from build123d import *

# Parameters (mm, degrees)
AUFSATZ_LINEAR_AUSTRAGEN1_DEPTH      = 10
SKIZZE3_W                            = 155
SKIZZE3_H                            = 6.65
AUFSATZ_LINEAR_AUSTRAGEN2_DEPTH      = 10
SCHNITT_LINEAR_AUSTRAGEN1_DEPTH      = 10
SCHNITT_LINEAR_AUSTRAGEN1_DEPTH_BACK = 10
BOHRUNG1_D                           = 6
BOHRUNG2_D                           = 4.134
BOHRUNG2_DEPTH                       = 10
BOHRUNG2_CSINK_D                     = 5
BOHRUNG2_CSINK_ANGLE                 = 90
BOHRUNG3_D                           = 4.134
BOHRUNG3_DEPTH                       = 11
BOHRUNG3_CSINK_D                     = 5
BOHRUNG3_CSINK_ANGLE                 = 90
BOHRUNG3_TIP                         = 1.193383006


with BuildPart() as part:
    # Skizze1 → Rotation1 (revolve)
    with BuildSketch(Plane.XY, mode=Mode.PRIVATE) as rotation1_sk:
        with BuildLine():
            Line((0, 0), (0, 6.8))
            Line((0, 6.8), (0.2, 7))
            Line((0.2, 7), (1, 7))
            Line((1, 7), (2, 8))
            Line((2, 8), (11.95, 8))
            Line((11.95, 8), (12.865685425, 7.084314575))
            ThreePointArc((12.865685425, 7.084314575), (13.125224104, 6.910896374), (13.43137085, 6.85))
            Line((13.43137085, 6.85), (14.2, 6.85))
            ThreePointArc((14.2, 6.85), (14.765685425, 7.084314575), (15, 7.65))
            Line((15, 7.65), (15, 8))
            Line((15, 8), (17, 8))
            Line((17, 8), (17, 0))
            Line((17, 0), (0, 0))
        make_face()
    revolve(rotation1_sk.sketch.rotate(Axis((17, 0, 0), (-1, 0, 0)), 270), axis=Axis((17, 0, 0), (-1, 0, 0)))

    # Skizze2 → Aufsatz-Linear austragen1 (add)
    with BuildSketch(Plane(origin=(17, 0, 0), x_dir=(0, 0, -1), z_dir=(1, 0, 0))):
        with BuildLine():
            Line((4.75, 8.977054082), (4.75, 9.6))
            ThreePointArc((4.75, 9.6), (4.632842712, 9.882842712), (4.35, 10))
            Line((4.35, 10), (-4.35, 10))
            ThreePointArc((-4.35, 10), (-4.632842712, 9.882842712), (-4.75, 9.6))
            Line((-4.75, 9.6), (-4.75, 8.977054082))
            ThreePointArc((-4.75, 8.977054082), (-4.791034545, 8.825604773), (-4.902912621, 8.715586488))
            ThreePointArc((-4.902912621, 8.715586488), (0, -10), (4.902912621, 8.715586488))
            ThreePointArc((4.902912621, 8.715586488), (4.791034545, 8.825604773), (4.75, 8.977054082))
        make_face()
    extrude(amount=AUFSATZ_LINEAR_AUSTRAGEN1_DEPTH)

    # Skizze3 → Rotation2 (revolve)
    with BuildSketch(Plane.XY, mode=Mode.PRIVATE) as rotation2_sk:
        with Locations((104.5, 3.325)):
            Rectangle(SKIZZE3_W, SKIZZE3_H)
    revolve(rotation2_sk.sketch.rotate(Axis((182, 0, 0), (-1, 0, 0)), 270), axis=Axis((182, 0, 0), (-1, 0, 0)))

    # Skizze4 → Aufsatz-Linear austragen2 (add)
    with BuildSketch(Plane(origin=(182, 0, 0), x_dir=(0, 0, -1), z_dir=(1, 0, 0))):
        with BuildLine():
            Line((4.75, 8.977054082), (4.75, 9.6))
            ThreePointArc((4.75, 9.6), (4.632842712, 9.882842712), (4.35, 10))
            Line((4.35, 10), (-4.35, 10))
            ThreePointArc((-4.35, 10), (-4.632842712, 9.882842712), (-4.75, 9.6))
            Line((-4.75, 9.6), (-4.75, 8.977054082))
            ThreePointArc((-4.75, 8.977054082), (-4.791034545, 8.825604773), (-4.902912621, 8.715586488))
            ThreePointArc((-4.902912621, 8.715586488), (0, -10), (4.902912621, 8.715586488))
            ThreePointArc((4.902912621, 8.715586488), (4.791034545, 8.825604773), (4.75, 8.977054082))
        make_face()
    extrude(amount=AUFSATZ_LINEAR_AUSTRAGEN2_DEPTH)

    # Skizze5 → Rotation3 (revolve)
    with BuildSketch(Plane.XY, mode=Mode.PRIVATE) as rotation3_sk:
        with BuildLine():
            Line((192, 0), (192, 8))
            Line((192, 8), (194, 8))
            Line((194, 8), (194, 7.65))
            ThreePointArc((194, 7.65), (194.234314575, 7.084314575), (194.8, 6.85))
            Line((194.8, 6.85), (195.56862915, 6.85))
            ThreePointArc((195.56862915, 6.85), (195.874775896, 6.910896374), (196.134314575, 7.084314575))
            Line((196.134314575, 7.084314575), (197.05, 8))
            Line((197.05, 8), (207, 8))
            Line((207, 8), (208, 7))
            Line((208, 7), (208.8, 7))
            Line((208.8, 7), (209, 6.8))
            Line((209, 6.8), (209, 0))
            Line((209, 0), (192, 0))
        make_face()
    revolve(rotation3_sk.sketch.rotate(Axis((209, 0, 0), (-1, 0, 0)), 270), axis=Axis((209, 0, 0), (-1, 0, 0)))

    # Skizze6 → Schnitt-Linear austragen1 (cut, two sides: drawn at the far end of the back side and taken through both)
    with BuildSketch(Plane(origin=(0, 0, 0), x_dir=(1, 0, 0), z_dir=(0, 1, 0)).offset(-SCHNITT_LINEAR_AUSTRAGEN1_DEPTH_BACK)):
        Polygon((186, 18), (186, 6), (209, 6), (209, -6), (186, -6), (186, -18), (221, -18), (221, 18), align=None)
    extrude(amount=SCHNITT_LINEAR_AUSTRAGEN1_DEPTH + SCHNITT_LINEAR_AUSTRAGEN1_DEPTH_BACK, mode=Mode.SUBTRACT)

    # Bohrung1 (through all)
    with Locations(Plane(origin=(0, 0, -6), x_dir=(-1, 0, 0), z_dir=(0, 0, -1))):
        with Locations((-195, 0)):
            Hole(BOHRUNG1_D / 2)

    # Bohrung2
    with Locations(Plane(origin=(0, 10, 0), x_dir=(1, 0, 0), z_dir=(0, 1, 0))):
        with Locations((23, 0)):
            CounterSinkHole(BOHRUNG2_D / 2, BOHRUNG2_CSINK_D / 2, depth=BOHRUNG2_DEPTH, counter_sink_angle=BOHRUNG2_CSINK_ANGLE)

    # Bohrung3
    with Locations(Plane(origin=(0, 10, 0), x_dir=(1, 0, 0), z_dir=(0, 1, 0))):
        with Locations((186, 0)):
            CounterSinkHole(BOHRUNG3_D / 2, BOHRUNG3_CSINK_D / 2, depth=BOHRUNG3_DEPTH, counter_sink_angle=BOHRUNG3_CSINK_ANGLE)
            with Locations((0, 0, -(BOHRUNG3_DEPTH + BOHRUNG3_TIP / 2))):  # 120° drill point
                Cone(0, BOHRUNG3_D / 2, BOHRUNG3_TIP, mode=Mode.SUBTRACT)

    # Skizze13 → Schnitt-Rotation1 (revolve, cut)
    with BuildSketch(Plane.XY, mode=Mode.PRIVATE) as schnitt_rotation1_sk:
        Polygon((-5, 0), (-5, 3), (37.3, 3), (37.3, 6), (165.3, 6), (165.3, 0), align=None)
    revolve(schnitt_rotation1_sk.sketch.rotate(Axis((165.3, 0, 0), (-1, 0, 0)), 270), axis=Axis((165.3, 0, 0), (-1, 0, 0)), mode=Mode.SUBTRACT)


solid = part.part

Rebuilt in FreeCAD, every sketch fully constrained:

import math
import FreeCAD as App
import Part
import Sketcher
Q = App.Units.Quantity

doc = App.newDocument("Part")
body = doc.addObject("PartDesign::Body", "Body")

sketch1 = doc.addObject("Sketcher::SketchObject", "Sketch")
body.addObject(sketch1)
sketch1.AttachmentSupport = (doc.XY_Plane, [""])
sketch1.MapMode = "FlatFace"
sketch1.addGeometry([
    Part.LineSegment(App.Vector(0, 6.8, 0), App.Vector(0, 0, 0)),
    Part.LineSegment(App.Vector(0, 0, 0), App.Vector(17, 0, 0)),
    Part.LineSegment(App.Vector(17, 0, 0), App.Vector(17, 8, 0)),
    Part.LineSegment(App.Vector(17, 8, 0), App.Vector(15, 8, 0)),
    Part.LineSegment(App.Vector(15, 8, 0), App.Vector(15, 7.65, 0)),
    Part.ArcOfCircle(Part.Circle(App.Vector(14.2, 7.65, 0), App.Vector(0, 0, 1), 0.8), math.radians(-90), math.radians(0)),
    Part.LineSegment(App.Vector(14.2, 6.85, 0), App.Vector(13.43, 6.85, 0)),
    Part.ArcOfCircle(Part.Circle(App.Vector(13.43, 7.65, 0), App.Vector(0, 0, 1), 0.8), math.radians(-135), math.radians(-90)),
    Part.LineSegment(App.Vector(12.87, 7.08, 0), App.Vector(11.95, 8, 0)),
    Part.LineSegment(App.Vector(11.95, 8, 0), App.Vector(2, 8, 0)),
    Part.LineSegment(App.Vector(2, 8, 0), App.Vector(1, 7, 0)),
    Part.LineSegment(App.Vector(1, 7, 0), App.Vector(0.2, 7, 0)),
    Part.LineSegment(App.Vector(0.2, 7, 0), App.Vector(0, 6.8, 0)),
], False)
sketch1.addConstraint([
    Sketcher.Constraint("Coincident", 0, 2, 1, 1),
    Sketcher.Constraint("Coincident", 1, 2, 2, 1),
    Sketcher.Constraint("Coincident", 2, 2, 3, 1),
    Sketcher.Constraint("Coincident", 3, 2, 4, 1),
    Sketcher.Constraint("Tangent", 4, 2, 5, 2),
    Sketcher.Constraint("Tangent", 5, 1, 6, 1),
    Sketcher.Constraint("Tangent", 6, 2, 7, 2),
    Sketcher.Constraint("Tangent", 7, 1, 8, 1),
    Sketcher.Constraint("Coincident", 8, 2, 9, 1),
    Sketcher.Constraint("Coincident", 9, 2, 10, 1),
    Sketcher.Constraint("Coincident", 10, 2, 11, 1),
    Sketcher.Constraint("Coincident", 11, 2, 12, 1),
    Sketcher.Constraint("Coincident", 12, 2, 0, 1),
    Sketcher.Constraint("Vertical", 0),
    Sketcher.Constraint("Horizontal", 1),
    Sketcher.Constraint("Vertical", 2),
    Sketcher.Constraint("Horizontal", 3),
    Sketcher.Constraint("Vertical", 4),
    Sketcher.Constraint("Horizontal", 6),
    Sketcher.Constraint("Horizontal", 9),
    Sketcher.Constraint("Horizontal", 11),
    Sketcher.Constraint("Coincident", 0, 2, -1, 1),
    Sketcher.Constraint("Equal", 5, 7),
    Sketcher.Constraint("Perpendicular", 8, 10),
    Sketcher.Constraint("Parallel", 10, 12),
    Sketcher.Constraint("Horizontal", 3, 2, 8, 2),
    Sketcher.Constraint("Radius", 5, 0.8),
    Sketcher.Constraint("DistanceX", 1, 1, 1, 2, 17.0),
    Sketcher.Constraint("DistanceX", 3, 2, 3, 1, 2.0),
    Sketcher.Constraint("DistanceY", 2, 1, 2, 2, 8.0),
    Sketcher.Constraint("Angle", 8, Q("135 deg")),
    Sketcher.Constraint("DistanceX", 11, 2, 11, 1, 0.8),
    Sketcher.Constraint("DistanceY", 0, 2, 0, 1, 6.8),
    Sketcher.Constraint("DistanceX", -1, 1, 10, 2, 1.0),
    Sketcher.Constraint("DistanceX", 9, 2, 9, 1, 9.95),
    Sketcher.Constraint("DistanceY", 4, 2, 4, 1, 0.35),
])
revolution = doc.addObject("PartDesign::Revolution", "Revolution")
body.addObject(revolution)
revolution.Profile = sketch1
revolution.ReferenceAxis = (sketch1, ["H_Axis"])
revolution.Angle = 360

sketch2 = doc.addObject("Sketcher::SketchObject", "Sketch001")
body.addObject(sketch2)
sketch2.AttachmentSupport = (doc.YZ_Plane, [""])
sketch2.MapMode = "FlatFace"
sketch2.AttachmentOffset = App.Placement(App.Vector(0, 0, 17), App.Rotation())
sketch2.addGeometry([
    Part.LineSegment(App.Vector(8.98, -4.75, 0), App.Vector(9.6, -4.75, 0)),
    Part.ArcOfCircle(Part.Circle(App.Vector(9.6, -4.35, 0), App.Vector(0, 0, 1), 0.4), math.radians(-90), math.radians(0)),
    Part.LineSegment(App.Vector(10, -4.35, 0), App.Vector(10, 4.35, 0)),
    Part.ArcOfCircle(Part.Circle(App.Vector(9.6, 4.35, 0), App.Vector(0, 0, 1), 0.4), math.radians(0), math.radians(90)),
    Part.LineSegment(App.Vector(9.6, 4.75, 0), App.Vector(8.98, 4.75, 0)),
    Part.ArcOfCircle(Part.Circle(App.Vector(8.98, 5.05, 0), App.Vector(0, 0, 1), 0.3), math.radians(-151), math.radians(-90)),
    Part.ArcOfCircle(Part.Circle(App.Vector(0, 0, 0), App.Vector(0, 0, 1), 10), math.radians(29), math.radians(331)),
    Part.ArcOfCircle(Part.Circle(App.Vector(8.98, -5.05, 0), App.Vector(0, 0, 1), 0.3), math.radians(90), math.radians(151)),
], False)
sketch2.addConstraint([
    Sketcher.Constraint("Tangent", 0, 2, 1, 1),
    Sketcher.Constraint("Tangent", 1, 2, 2, 1),
    Sketcher.Constraint("Tangent", 2, 2, 3, 1),
    Sketcher.Constraint("Tangent", 3, 2, 4, 1),
    Sketcher.Constraint("Tangent", 4, 2, 5, 2),
    Sketcher.Constraint("Tangent", 5, 1, 6, 1),
    Sketcher.Constraint("Tangent", 6, 2, 7, 2),
    Sketcher.Constraint("Tangent", 7, 1, 0, 1),
    Sketcher.Constraint("Horizontal", 0),
    Sketcher.Constraint("Vertical", 2),
    Sketcher.Constraint("Horizontal", 4),
    Sketcher.Constraint("Coincident", 6, 3, -1, 1),
    Sketcher.Constraint("Equal", 1, 3),
    Sketcher.Constraint("Equal", 5, 7),
    Sketcher.Constraint("Vertical", 5, 3, 7, 3),
    Sketcher.Constraint("Radius", 6, 10.0),
    Sketcher.Constraint("Radius", 1, 0.4),
    Sketcher.Constraint("Radius", 5, 0.3),
    Sketcher.Constraint("DistanceY", 2, 1, 2, 2, 8.7),
    Sketcher.Constraint("DistanceX", -1, 1, 1, 2, 10.0),
])
pad1 = doc.addObject("PartDesign::Pad", "Pad")
body.addObject(pad1)
pad1.Profile = sketch2
pad1.Length = 10

sketch3 = doc.addObject("Sketcher::SketchObject", "Sketch002")
body.addObject(sketch3)
sketch3.AttachmentSupport = (doc.XY_Plane, [""])
sketch3.MapMode = "FlatFace"
sketch3.addGeometry([
    Part.LineSegment(App.Vector(27, 7, 0), App.Vector(27, 0, 0)),
    Part.LineSegment(App.Vector(27, 0, 0), App.Vector(182, 0, 0)),
    Part.LineSegment(App.Vector(182, 0, 0), App.Vector(182, 7, 0)),
    Part.LineSegment(App.Vector(182, 7, 0), App.Vector(27, 7, 0)),
], False)
sketch3.addConstraint([
    Sketcher.Constraint("Coincident", 0, 2, 1, 1),
    Sketcher.Constraint("Coincident", 1, 2, 2, 1),
    Sketcher.Constraint("Coincident", 2, 2, 3, 1),
    Sketcher.Constraint("Coincident", 3, 2, 0, 1),
    Sketcher.Constraint("Vertical", 0),
    Sketcher.Constraint("Horizontal", 1),
    Sketcher.Constraint("Vertical", 2),
    Sketcher.Constraint("Horizontal", 3),
    Sketcher.Constraint("PointOnObject", 0, 2, -1),
    Sketcher.Constraint("DistanceX", 1, 1, 1, 2, 155.0),
    Sketcher.Constraint("DistanceX", -1, 1, 0, 2, 27.0),
    Sketcher.Constraint("DistanceY", 0, 2, 0, 1, 6.65),
])
revolution2 = doc.addObject("PartDesign::Revolution", "Revolution001")
body.addObject(revolution2)
revolution2.Profile = sketch3
revolution2.ReferenceAxis = (sketch3, ["H_Axis"])
revolution2.Angle = 360

sketch4 = doc.addObject("Sketcher::SketchObject", "Sketch003")
body.addObject(sketch4)
sketch4.AttachmentSupport = (doc.YZ_Plane, [""])
sketch4.MapMode = "FlatFace"
sketch4.AttachmentOffset = App.Placement(App.Vector(0, 0, 182), App.Rotation())
sketch4.addGeometry([
    Part.LineSegment(App.Vector(8.98, -4.75, 0), App.Vector(9.6, -4.75, 0)),
    Part.ArcOfCircle(Part.Circle(App.Vector(9.6, -4.35, 0), App.Vector(0, 0, 1), 0.4), math.radians(-90), math.radians(0)),
    Part.LineSegment(App.Vector(10, -4.35, 0), App.Vector(10, 4.35, 0)),
    Part.ArcOfCircle(Part.Circle(App.Vector(9.6, 4.35, 0), App.Vector(0, 0, 1), 0.4), math.radians(0), math.radians(90)),
    Part.LineSegment(App.Vector(9.6, 4.75, 0), App.Vector(8.98, 4.75, 0)),
    Part.ArcOfCircle(Part.Circle(App.Vector(8.98, 5.05, 0), App.Vector(0, 0, 1), 0.3), math.radians(-151), math.radians(-90)),
    Part.ArcOfCircle(Part.Circle(App.Vector(0, 0, 0), App.Vector(0, 0, 1), 10), math.radians(29), math.radians(331)),
    Part.ArcOfCircle(Part.Circle(App.Vector(8.98, -5.05, 0), App.Vector(0, 0, 1), 0.3), math.radians(90), math.radians(151)),
], False)
sketch4.addConstraint([
    Sketcher.Constraint("Tangent", 0, 2, 1, 1),
    Sketcher.Constraint("Tangent", 1, 2, 2, 1),
    Sketcher.Constraint("Tangent", 2, 2, 3, 1),
    Sketcher.Constraint("Tangent", 3, 2, 4, 1),
    Sketcher.Constraint("Tangent", 4, 2, 5, 2),
    Sketcher.Constraint("Tangent", 5, 1, 6, 1),
    Sketcher.Constraint("Tangent", 6, 2, 7, 2),
    Sketcher.Constraint("Tangent", 7, 1, 0, 1),
    Sketcher.Constraint("Horizontal", 0),
    Sketcher.Constraint("Vertical", 2),
    Sketcher.Constraint("Horizontal", 4),
    Sketcher.Constraint("Coincident", 6, 3, -1, 1),
    Sketcher.Constraint("Equal", 1, 3),
    Sketcher.Constraint("Equal", 5, 7),
    Sketcher.Constraint("Vertical", 5, 3, 7, 3),
    Sketcher.Constraint("Radius", 6, 10.0),
    Sketcher.Constraint("Radius", 1, 0.4),
    Sketcher.Constraint("Radius", 5, 0.3),
    Sketcher.Constraint("DistanceY", 2, 1, 2, 2, 8.7),
    Sketcher.Constraint("DistanceX", -1, 1, 1, 2, 10.0),
])
pad2 = doc.addObject("PartDesign::Pad", "Pad001")
body.addObject(pad2)
pad2.Profile = sketch4
pad2.Length = 10

sketch5 = doc.addObject("Sketcher::SketchObject", "Sketch004")
body.addObject(sketch5)
sketch5.AttachmentSupport = (doc.XY_Plane, [""])
sketch5.MapMode = "FlatFace"
sketch5.addGeometry([
    Part.LineSegment(App.Vector(192, 8, 0), App.Vector(192, 0, 0)),
    Part.LineSegment(App.Vector(192, 0, 0), App.Vector(209, 0, 0)),
    Part.LineSegment(App.Vector(209, 0, 0), App.Vector(209, 6.8, 0)),
    Part.LineSegment(App.Vector(209, 6.8, 0), App.Vector(208.8, 7, 0)),
    Part.LineSegment(App.Vector(208.8, 7, 0), App.Vector(208, 7, 0)),
    Part.LineSegment(App.Vector(208, 7, 0), App.Vector(207, 8, 0)),
    Part.LineSegment(App.Vector(207, 8, 0), App.Vector(197.05, 8, 0)),
    Part.LineSegment(App.Vector(197.05, 8, 0), App.Vector(196.13, 7.08, 0)),
    Part.ArcOfCircle(Part.Circle(App.Vector(195.57, 7.65, 0), App.Vector(0, 0, 1), 0.8), math.radians(-90), math.radians(-45)),
    Part.LineSegment(App.Vector(195.57, 6.85, 0), App.Vector(194.8, 6.85, 0)),
    Part.ArcOfCircle(Part.Circle(App.Vector(194.8, 7.65, 0), App.Vector(0, 0, 1), 0.8), math.radians(180), math.radians(270)),
    Part.LineSegment(App.Vector(194, 7.65, 0), App.Vector(194, 8, 0)),
    Part.LineSegment(App.Vector(194, 8, 0), App.Vector(192, 8, 0)),
], False)
sketch5.addConstraint([
    Sketcher.Constraint("Coincident", 0, 2, 1, 1),
    Sketcher.Constraint("Coincident", 1, 2, 2, 1),
    Sketcher.Constraint("Coincident", 2, 2, 3, 1),
    Sketcher.Constraint("Coincident", 3, 2, 4, 1),
    Sketcher.Constraint("Coincident", 4, 2, 5, 1),
    Sketcher.Constraint("Coincident", 5, 2, 6, 1),
    Sketcher.Constraint("Coincident", 6, 2, 7, 1),
    Sketcher.Constraint("Tangent", 7, 2, 8, 2),
    Sketcher.Constraint("Tangent", 8, 1, 9, 1),
    Sketcher.Constraint("Tangent", 9, 2, 10, 2),
    Sketcher.Constraint("Tangent", 10, 1, 11, 1),
    Sketcher.Constraint("Coincident", 11, 2, 12, 1),
    Sketcher.Constraint("Coincident", 12, 2, 0, 1),
    Sketcher.Constraint("Vertical", 0),
    Sketcher.Constraint("Horizontal", 1),
    Sketcher.Constraint("Vertical", 2),
    Sketcher.Constraint("Horizontal", 4),
    Sketcher.Constraint("Horizontal", 6),
    Sketcher.Constraint("Horizontal", 9),
    Sketcher.Constraint("Vertical", 11),
    Sketcher.Constraint("Horizontal", 12),
    Sketcher.Constraint("Equal", 8, 10),
    Sketcher.Constraint("PointOnObject", 0, 2, -1),
    Sketcher.Constraint("Parallel", 3, 5),
    Sketcher.Constraint("Perpendicular", 5, 7),
    Sketcher.Constraint("Horizontal", 6, 2, 11, 2),
    Sketcher.Constraint("Radius", 8, 0.8),
    Sketcher.Constraint("DistanceX", 1, 1, 1, 2, 17.0),
    Sketcher.Constraint("DistanceX", 12, 2, 12, 1, 2.0),
    Sketcher.Constraint("DistanceY", 0, 2, 0, 1, 8.0),
    Sketcher.Constraint("Angle", 3, Q("135 deg")),
    Sketcher.Constraint("DistanceX", 4, 2, 4, 1, 0.8),
    Sketcher.Constraint("DistanceY", 2, 1, 2, 2, 6.8),
    Sketcher.Constraint("DistanceX", -1, 1, 0, 2, 192.0),
    Sketcher.Constraint("DistanceY", -1, 1, 3, 2, 7.0),
    Sketcher.Constraint("DistanceX", 6, 2, 6, 1, 9.95),
    Sketcher.Constraint("DistanceY", 11, 1, 11, 2, 0.35),
])
revolution3 = doc.addObject("PartDesign::Revolution", "Revolution002")
body.addObject(revolution3)
revolution3.Profile = sketch5
revolution3.ReferenceAxis = (sketch5, ["H_Axis"])
revolution3.Angle = 360

sketch6 = doc.addObject("Sketcher::SketchObject", "Sketch005")
body.addObject(sketch6)
sketch6.AttachmentSupport = (doc.XZ_Plane, [""])
sketch6.MapMode = "FlatFace"
sketch6.addGeometry([
    Part.LineSegment(App.Vector(186, -18, 0), App.Vector(186, -6, 0)),
    Part.LineSegment(App.Vector(186, -6, 0), App.Vector(209, -6, 0)),
    Part.LineSegment(App.Vector(209, -6, 0), App.Vector(209, 6, 0)),
    Part.LineSegment(App.Vector(209, 6, 0), App.Vector(186, 6, 0)),
    Part.LineSegment(App.Vector(186, 6, 0), App.Vector(186, 18, 0)),
    Part.LineSegment(App.Vector(186, 18, 0), App.Vector(221, 18, 0)),
    Part.LineSegment(App.Vector(221, 18, 0), App.Vector(221, -18, 0)),
    Part.LineSegment(App.Vector(221, -18, 0), App.Vector(186, -18, 0)),
], False)
sketch6.addConstraint([
    Sketcher.Constraint("Coincident", 0, 2, 1, 1),
    Sketcher.Constraint("Coincident", 1, 2, 2, 1),
    Sketcher.Constraint("Coincident", 2, 2, 3, 1),
    Sketcher.Constraint("Coincident", 3, 2, 4, 1),
    Sketcher.Constraint("Coincident", 4, 2, 5, 1),
    Sketcher.Constraint("Coincident", 5, 2, 6, 1),
    Sketcher.Constraint("Coincident", 6, 2, 7, 1),
    Sketcher.Constraint("Coincident", 7, 2, 0, 1),
    Sketcher.Constraint("Vertical", 0),
    Sketcher.Constraint("Horizontal", 1),
    Sketcher.Constraint("Vertical", 2),
    Sketcher.Constraint("Horizontal", 3),
    Sketcher.Constraint("Vertical", 4),
    Sketcher.Constraint("Horizontal", 5),
    Sketcher.Constraint("Vertical", 6),
    Sketcher.Constraint("Horizontal", 7),
    Sketcher.Constraint("Symmetric", 0, 2, 3, 2, -1),
    Sketcher.Constraint("Equal", 0, 2),
    Sketcher.Constraint("Equal", 2, 4),
    Sketcher.Constraint("DistanceX", 1, 1, 1, 2, 23.0),
    Sketcher.Constraint("DistanceX", 5, 1, 5, 2, 35.0),
    Sketcher.Constraint("DistanceY", 0, 1, 0, 2, 12.0),
    Sketcher.Constraint("DistanceX", -1, 1, 0, 2, 186.0),
])
pocket1 = doc.addObject("PartDesign::Pocket", "Pocket")
body.addObject(pocket1)
pocket1.Profile = sketch6
pocket1.Type = "ThroughAll"
pocket1.Midplane = True

sketch7 = doc.addObject("Sketcher::SketchObject", "Sketch006")
body.addObject(sketch7)
sketch7.AttachmentSupport = (doc.XY_Plane, [""])
sketch7.MapMode = "FlatFace"
sketch7.AttachmentOffset = App.Placement(App.Vector(0, 0, -6), App.Rotation())
sketch7.addGeometry(Part.Circle(App.Vector(195, 0, 0), App.Vector(0, 0, 1), 3), False)
sketch7.addConstraint([
    Sketcher.Constraint("PointOnObject", 0, 3, -1),
    Sketcher.Constraint("Diameter", 0, 6.0),
    Sketcher.Constraint("DistanceX", -1, 1, 0, 3, 195.0),
])
doc.recompute()
hole = doc.addObject("PartDesign::Hole", "Hole")
body.addObject(hole)
hole.Profile = sketch7
hole.ThreadType = "None"
hole.Diameter = 6
hole.DepthType = "ThroughAll"
hole.Reversed = True

sketch8 = doc.addObject("Sketcher::SketchObject", "Sketch007")
body.addObject(sketch8)
sketch8.AttachmentSupport = (doc.XZ_Plane, [""])
sketch8.MapMode = "FlatFace"
sketch8.AttachmentOffset = App.Placement(App.Vector(0, 0, -10), App.Rotation())
sketch8.addGeometry(Part.Circle(App.Vector(23, 0, 0), App.Vector(0, 0, 1), 2.1), False)
sketch8.addConstraint([
    Sketcher.Constraint("PointOnObject", 0, 3, -1),
    Sketcher.Constraint("Diameter", 0, 4.134),
    Sketcher.Constraint("DistanceX", -1, 1, 0, 3, 23.0),
])
doc.recompute()
hole2 = doc.addObject("PartDesign::Hole", "Hole001")
body.addObject(hole2)
hole2.Profile = sketch8
hole2.ThreadType = "None"
hole2.Diameter = 4.134
hole2.DepthType = "Dimension"
hole2.Depth = 10
hole2.DrillPoint = "Flat"
hole2.HoleCutType = "Countersink"
hole2.HoleCutDiameter = 5
hole2.HoleCutCountersinkAngle = 90
hole2.Reversed = True

sketch9 = doc.addObject("Sketcher::SketchObject", "Sketch008")
body.addObject(sketch9)
sketch9.AttachmentSupport = (doc.XZ_Plane, [""])
sketch9.MapMode = "FlatFace"
sketch9.AttachmentOffset = App.Placement(App.Vector(0, 0, -10), App.Rotation())
sketch9.addGeometry(Part.Circle(App.Vector(186, 0, 0), App.Vector(0, 0, 1), 2.1), False)
sketch9.addConstraint([
    Sketcher.Constraint("PointOnObject", 0, 3, -1),
    Sketcher.Constraint("Diameter", 0, 4.134),
    Sketcher.Constraint("DistanceX", -1, 1, 0, 3, 186.0),
])
doc.recompute()
hole3 = doc.addObject("PartDesign::Hole", "Hole002")
body.addObject(hole3)
hole3.Profile = sketch9
hole3.ThreadType = "None"
hole3.Diameter = 4.134
hole3.DepthType = "Dimension"
hole3.Depth = 11
hole3.DrillPoint = "Angled"
hole3.DrillPointAngle = 120
hole3.HoleCutType = "Countersink"
hole3.HoleCutDiameter = 5
hole3.HoleCutCountersinkAngle = 90
hole3.Reversed = True

sketch10 = doc.addObject("Sketcher::SketchObject", "Sketch009")
body.addObject(sketch10)
sketch10.AttachmentSupport = (doc.XY_Plane, [""])
sketch10.MapMode = "FlatFace"
sketch10.addGeometry([
    Part.LineSegment(App.Vector(-5, 3, 0), App.Vector(-5, 0, 0)),
    Part.LineSegment(App.Vector(-5, 0, 0), App.Vector(165.3, 0, 0)),
    Part.LineSegment(App.Vector(165.3, 0, 0), App.Vector(165.3, 6, 0)),
    Part.LineSegment(App.Vector(165.3, 6, 0), App.Vector(37.3, 6, 0)),
    Part.LineSegment(App.Vector(37.3, 6, 0), App.Vector(37.3, 3, 0)),
    Part.LineSegment(App.Vector(37.3, 3, 0), App.Vector(-5, 3, 0)),
], False)
sketch10.addConstraint([
    Sketcher.Constraint("Coincident", 0, 2, 1, 1),
    Sketcher.Constraint("Coincident", 1, 2, 2, 1),
    Sketcher.Constraint("Coincident", 2, 2, 3, 1),
    Sketcher.Constraint("Coincident", 3, 2, 4, 1),
    Sketcher.Constraint("Coincident", 4, 2, 5, 1),
    Sketcher.Constraint("Coincident", 5, 2, 0, 1),
    Sketcher.Constraint("Vertical", 0),
    Sketcher.Constraint("Horizontal", 1),
    Sketcher.Constraint("Vertical", 2),
    Sketcher.Constraint("Horizontal", 3),
    Sketcher.Constraint("Vertical", 4),
    Sketcher.Constraint("Horizontal", 5),
    Sketcher.Constraint("PointOnObject", 0, 2, -1),
    Sketcher.Constraint("Equal", 0, 4),
    Sketcher.Constraint("DistanceX", 3, 2, 3, 1, 128.0),
    Sketcher.Constraint("DistanceY", 0, 2, 0, 1, 3.0),
    Sketcher.Constraint("DistanceX", 1, 1, 1, 2, 170.3),
    Sketcher.Constraint("DistanceX", 0, 2, -1, 1, 5.0),
])
groove = doc.addObject("PartDesign::Groove", "Groove")
body.addObject(groove)
groove.Profile = sketch10
groove.ReferenceAxis = (sketch10, ["H_Axis"])
groove.Angle = 360

doc.recompute()
